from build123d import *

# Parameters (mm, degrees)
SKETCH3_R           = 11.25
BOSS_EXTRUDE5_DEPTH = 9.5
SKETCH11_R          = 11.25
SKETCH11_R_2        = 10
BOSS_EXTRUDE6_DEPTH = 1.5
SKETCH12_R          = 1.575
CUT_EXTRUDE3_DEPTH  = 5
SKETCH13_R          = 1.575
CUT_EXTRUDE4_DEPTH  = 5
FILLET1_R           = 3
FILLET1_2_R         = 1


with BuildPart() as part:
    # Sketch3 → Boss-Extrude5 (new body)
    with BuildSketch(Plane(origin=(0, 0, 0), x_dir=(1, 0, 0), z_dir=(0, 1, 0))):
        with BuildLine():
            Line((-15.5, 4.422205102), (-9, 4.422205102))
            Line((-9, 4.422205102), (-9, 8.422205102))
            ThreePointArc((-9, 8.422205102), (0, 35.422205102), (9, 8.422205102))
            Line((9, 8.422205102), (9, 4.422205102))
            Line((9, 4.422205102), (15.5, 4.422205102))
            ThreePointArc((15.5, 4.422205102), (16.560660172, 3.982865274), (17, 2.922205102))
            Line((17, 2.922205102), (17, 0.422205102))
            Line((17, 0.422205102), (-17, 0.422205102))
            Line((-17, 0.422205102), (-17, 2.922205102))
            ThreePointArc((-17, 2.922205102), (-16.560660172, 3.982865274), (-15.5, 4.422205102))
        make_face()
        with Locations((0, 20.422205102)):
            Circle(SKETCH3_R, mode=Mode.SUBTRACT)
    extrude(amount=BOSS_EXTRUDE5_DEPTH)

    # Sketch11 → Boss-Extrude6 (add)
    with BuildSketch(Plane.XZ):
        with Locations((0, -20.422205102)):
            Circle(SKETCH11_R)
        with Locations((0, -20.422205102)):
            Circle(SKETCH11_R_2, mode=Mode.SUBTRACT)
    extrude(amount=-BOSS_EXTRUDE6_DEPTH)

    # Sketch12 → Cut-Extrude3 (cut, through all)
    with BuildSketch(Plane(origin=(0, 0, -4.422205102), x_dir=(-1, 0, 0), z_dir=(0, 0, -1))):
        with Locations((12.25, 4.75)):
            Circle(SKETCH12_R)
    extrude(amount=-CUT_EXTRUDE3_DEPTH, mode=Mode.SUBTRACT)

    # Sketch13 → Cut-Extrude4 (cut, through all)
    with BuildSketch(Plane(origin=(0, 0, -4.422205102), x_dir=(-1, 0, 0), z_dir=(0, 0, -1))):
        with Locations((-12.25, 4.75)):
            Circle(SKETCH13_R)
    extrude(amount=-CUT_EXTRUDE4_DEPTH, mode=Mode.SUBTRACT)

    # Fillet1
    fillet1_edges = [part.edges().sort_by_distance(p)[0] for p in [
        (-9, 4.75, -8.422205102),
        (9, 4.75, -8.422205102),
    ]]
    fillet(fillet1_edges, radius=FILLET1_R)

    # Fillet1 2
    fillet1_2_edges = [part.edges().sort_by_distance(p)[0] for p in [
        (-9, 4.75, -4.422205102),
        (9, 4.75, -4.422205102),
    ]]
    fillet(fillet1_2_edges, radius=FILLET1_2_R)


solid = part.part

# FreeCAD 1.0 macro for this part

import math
import FreeCAD as App
import Part
import Sketcher


def edges_at(feature, points):
    """Names of the edges that pass closest to the given points."""
    edges = feature.Shape.Edges
    near = lambda p: min(range(len(edges)), key=lambda i: edges[i].distToShape(Part.Vertex(*p))[0])
    return sorted({f"Edge{near(p) + 1}" for p in points})

doc = App.newDocument("Part")
body = doc.addObject("PartDesign::Body", "Body")

# Sketch on XZ plane
sketch1 = body.newObject("Sketcher::SketchObject", "Sketch")
sketch1.AttachmentSupport = (doc.getObject("XZ_Plane"), [""])
sketch1.MapMode = "FlatFace"
sketch1.addGeometry(Part.LineSegment(App.Vector(-9, -4.4, 0), App.Vector(-15.5, -4.4, 0)), False)
sketch1.addGeometry(Part.ArcOfCircle(Part.Circle(App.Vector(-15.5, -2.9, 0), App.Vector(0, 0, 1), 1.5), math.radians(180), math.radians(270)), False)
sketch1.addGeometry(Part.LineSegment(App.Vector(-17, -2.9, 0), App.Vector(-17, -0.4, 0)), False)
sketch1.addGeometry(Part.LineSegment(App.Vector(-17, -0.4, 0), App.Vector(17, -0.4, 0)), False)
sketch1.addGeometry(Part.LineSegment(App.Vector(17, -0.4, 0), App.Vector(17, -2.9, 0)), False)
sketch1.addGeometry(Part.ArcOfCircle(Part.Circle(App.Vector(15.5, -2.9, 0), App.Vector(0, 0, 1), 1.5), math.radians(-90), math.radians(0)), False)
sketch1.addGeometry(Part.LineSegment(App.Vector(15.5, -4.4, 0), App.Vector(9, -4.4, 0)), False)
sketch1.addGeometry(Part.LineSegment(App.Vector(9, -4.4, 0), App.Vector(9, -8.4, 0)), False)
sketch1.addGeometry(Part.ArcOfCircle(Part.Circle(App.Vector(0, -20.4, 0), App.Vector(0, 0, 1), 15), math.radians(127), math.radians(413)), False)
sketch1.addGeometry(Part.LineSegment(App.Vector(-9, -8.4, 0), App.Vector(-9, -4.4, 0)), False)
sketch1.addGeometry(Part.Circle(App.Vector(0, -20.4, 0), App.Vector(0, 0, 1), 11.2), False)
sketch1.addConstraint(Sketcher.Constraint("Tangent", 0, 2, 1, 2))
sketch1.addConstraint(Sketcher.Constraint("Tangent", 1, 1, 2, 1))
sketch1.addConstraint(Sketcher.Constraint("Coincident", 2, 2, 3, 1))
sketch1.addConstraint(Sketcher.Constraint("Coincident", 3, 2, 4, 1))
sketch1.addConstraint(Sketcher.Constraint("Tangent", 4, 2, 5, 2))
sketch1.addConstraint(Sketcher.Constraint("Tangent", 5, 1, 6, 1))
sketch1.addConstraint(Sketcher.Constraint("Coincident", 6, 2, 7, 1))
sketch1.addConstraint(Sketcher.Constraint("Coincident", 7, 2, 8, 2))
sketch1.addConstraint(Sketcher.Constraint("Coincident", 8, 1, 9, 1))
sketch1.addConstraint(Sketcher.Constraint("Coincident", 9, 2, 0, 1))
sketch1.addConstraint(Sketcher.Constraint("Horizontal", 0))
sketch1.addConstraint(Sketcher.Constraint("Vertical", 2))
sketch1.addConstraint(Sketcher.Constraint("Horizontal", 3))
sketch1.addConstraint(Sketcher.Constraint("Vertical", 4))
sketch1.addConstraint(Sketcher.Constraint("Horizontal", 6))
sketch1.addConstraint(Sketcher.Constraint("Vertical", 7))
sketch1.addConstraint(Sketcher.Constraint("Vertical", 9))
sketch1.addConstraint(Sketcher.Constraint("Coincident", 10, 3, 8, 3))
sketch1.addConstraint(Sketcher.Constraint("Equal", 1, 5))
sketch1.addConstraint(Sketcher.Constraint("Symmetric", 1, 3, 5, 3, -2))
sketch1.addConstraint(Sketcher.Constraint("Symmetric", 7, 2, 8, 1, -2))
sketch1.addConstraint(Sketcher.Constraint("Radius", 8, 15.0))
sketch1.addConstraint(Sketcher.Constraint("Diameter", 10, 22.5))
sketch1.addConstraint(Sketcher.Constraint("Radius", 1, 1.5))
sketch1.addConstraint(Sketcher.Constraint("DistanceX", 3, 1, 3, 2, 34.0))
sketch1.addConstraint(Sketcher.Constraint("DistanceY", 7, 2, 7, 1, 4.0))
sketch1.addConstraint(Sketcher.Constraint("DistanceX", 0, 2, 0, 1, 6.5))
sketch1.addConstraint(Sketcher.Constraint("DistanceY", 2, 1, 2, 2, 2.5))
sketch1.addConstraint(Sketcher.Constraint("DistanceY", 1, 3, -1, 1, 2.922205))
pad1 = body.newObject("PartDesign::Pad", "Pad")
pad1.Profile = sketch1
pad1.Length = 9.5
pad1.Reversed = True

# Sketch on XZ plane
sketch2 = body.newObject("Sketcher::SketchObject", "Sketch001")
sketch2.AttachmentSupport = (doc.getObject("XZ_Plane"), [""])
sketch2.MapMode = "FlatFace"
sketch2.addGeometry(Part.Circle(App.Vector(0, -20, 0), App.Vector(0, 0, 1), 11), False)
sketch2.addGeometry(Part.Circle(App.Vector(0, -20, 0), App.Vector(0, 0, 1), 10), False)
sketch2.addConstraint(Sketcher.Constraint("Coincident", 1, 3, 0, 3))
sketch2.addConstraint(Sketcher.Constraint("PointOnObject", 0, 3, -2))
sketch2.addConstraint(Sketcher.Constraint("Diameter", 1, 20.0))
sketch2.addConstraint(Sketcher.Constraint("Diameter", 0, 22.5))
sketch2.addConstraint(Sketcher.Constraint("DistanceY", 0, 3, -1, 1, 20.422205))
pad2 = body.newObject("PartDesign::Pad", "Pad001")
pad2.Profile = sketch2
pad2.Length = 1.5
pad2.Reversed = True

# Sketch on XY plane
sketch3 = body.newObject("Sketcher::SketchObject", "Sketch002")
sketch3.AttachmentSupport = (doc.getObject("XY_Plane"), [""])
sketch3.MapMode = "FlatFace"
sketch3.AttachmentOffset = App.Placement(App.Vector(0, 0, -4.422205), App.Rotation())
sketch3.addGeometry(Part.Circle(App.Vector(-12.2, 4.8, 0), App.Vector(0, 0, 1), 1.6), False)
sketch3.addConstraint(Sketcher.Constraint("Diameter", 0, 3.15))
sketch3.addConstraint(Sketcher.Constraint("DistanceX", 0, 3, -1, 1, 12.25))
sketch3.addConstraint(Sketcher.Constraint("DistanceY", -1, 1, 0, 3, 4.75))
pocket1 = body.newObject("PartDesign::Pocket", "Pocket")
pocket1.Profile = sketch3
pocket1.Type = "ThroughAll"
pocket1.Reversed = True

# Sketch on XY plane
sketch4 = body.newObject("Sketcher::SketchObject", "Sketch003")
sketch4.AttachmentSupport = (doc.getObject("XY_Plane"), [""])
sketch4.MapMode = "FlatFace"
sketch4.AttachmentOffset = App.Placement(App.Vector(0, 0, -4.422205), App.Rotation())
sketch4.addGeometry(Part.Circle(App.Vector(12.2, 4.8, 0), App.Vector(0, 0, 1), 1.6), False)
sketch4.addConstraint(Sketcher.Constraint("Diameter", 0, 3.15))
sketch4.addConstraint(Sketcher.Constraint("DistanceX", -1, 1, 0, 3, 12.25))
sketch4.addConstraint(Sketcher.Constraint("DistanceY", -1, 1, 0, 3, 4.75))
pocket2 = body.newObject("PartDesign::Pocket", "Pocket001")
pocket2.Profile = sketch4
pocket2.Type = "ThroughAll"
pocket2.Reversed = True
doc.recompute()

fillet = body.newObject("PartDesign::Fillet", "Fillet")
fillet.Base = (pocket2, edges_at(pocket2, [(-9, 4.75, -8.422), (9, 4.75, -8.422)]))
fillet.Radius = 3
doc.recompute()

fillet2 = body.newObject("PartDesign::Fillet", "Fillet001")
fillet2.Base = (fillet, edges_at(fillet, [(-9, 4.75, -4.422), (9, 4.75, -4.422)]))
fillet2.Radius = 1

doc.recompute()
